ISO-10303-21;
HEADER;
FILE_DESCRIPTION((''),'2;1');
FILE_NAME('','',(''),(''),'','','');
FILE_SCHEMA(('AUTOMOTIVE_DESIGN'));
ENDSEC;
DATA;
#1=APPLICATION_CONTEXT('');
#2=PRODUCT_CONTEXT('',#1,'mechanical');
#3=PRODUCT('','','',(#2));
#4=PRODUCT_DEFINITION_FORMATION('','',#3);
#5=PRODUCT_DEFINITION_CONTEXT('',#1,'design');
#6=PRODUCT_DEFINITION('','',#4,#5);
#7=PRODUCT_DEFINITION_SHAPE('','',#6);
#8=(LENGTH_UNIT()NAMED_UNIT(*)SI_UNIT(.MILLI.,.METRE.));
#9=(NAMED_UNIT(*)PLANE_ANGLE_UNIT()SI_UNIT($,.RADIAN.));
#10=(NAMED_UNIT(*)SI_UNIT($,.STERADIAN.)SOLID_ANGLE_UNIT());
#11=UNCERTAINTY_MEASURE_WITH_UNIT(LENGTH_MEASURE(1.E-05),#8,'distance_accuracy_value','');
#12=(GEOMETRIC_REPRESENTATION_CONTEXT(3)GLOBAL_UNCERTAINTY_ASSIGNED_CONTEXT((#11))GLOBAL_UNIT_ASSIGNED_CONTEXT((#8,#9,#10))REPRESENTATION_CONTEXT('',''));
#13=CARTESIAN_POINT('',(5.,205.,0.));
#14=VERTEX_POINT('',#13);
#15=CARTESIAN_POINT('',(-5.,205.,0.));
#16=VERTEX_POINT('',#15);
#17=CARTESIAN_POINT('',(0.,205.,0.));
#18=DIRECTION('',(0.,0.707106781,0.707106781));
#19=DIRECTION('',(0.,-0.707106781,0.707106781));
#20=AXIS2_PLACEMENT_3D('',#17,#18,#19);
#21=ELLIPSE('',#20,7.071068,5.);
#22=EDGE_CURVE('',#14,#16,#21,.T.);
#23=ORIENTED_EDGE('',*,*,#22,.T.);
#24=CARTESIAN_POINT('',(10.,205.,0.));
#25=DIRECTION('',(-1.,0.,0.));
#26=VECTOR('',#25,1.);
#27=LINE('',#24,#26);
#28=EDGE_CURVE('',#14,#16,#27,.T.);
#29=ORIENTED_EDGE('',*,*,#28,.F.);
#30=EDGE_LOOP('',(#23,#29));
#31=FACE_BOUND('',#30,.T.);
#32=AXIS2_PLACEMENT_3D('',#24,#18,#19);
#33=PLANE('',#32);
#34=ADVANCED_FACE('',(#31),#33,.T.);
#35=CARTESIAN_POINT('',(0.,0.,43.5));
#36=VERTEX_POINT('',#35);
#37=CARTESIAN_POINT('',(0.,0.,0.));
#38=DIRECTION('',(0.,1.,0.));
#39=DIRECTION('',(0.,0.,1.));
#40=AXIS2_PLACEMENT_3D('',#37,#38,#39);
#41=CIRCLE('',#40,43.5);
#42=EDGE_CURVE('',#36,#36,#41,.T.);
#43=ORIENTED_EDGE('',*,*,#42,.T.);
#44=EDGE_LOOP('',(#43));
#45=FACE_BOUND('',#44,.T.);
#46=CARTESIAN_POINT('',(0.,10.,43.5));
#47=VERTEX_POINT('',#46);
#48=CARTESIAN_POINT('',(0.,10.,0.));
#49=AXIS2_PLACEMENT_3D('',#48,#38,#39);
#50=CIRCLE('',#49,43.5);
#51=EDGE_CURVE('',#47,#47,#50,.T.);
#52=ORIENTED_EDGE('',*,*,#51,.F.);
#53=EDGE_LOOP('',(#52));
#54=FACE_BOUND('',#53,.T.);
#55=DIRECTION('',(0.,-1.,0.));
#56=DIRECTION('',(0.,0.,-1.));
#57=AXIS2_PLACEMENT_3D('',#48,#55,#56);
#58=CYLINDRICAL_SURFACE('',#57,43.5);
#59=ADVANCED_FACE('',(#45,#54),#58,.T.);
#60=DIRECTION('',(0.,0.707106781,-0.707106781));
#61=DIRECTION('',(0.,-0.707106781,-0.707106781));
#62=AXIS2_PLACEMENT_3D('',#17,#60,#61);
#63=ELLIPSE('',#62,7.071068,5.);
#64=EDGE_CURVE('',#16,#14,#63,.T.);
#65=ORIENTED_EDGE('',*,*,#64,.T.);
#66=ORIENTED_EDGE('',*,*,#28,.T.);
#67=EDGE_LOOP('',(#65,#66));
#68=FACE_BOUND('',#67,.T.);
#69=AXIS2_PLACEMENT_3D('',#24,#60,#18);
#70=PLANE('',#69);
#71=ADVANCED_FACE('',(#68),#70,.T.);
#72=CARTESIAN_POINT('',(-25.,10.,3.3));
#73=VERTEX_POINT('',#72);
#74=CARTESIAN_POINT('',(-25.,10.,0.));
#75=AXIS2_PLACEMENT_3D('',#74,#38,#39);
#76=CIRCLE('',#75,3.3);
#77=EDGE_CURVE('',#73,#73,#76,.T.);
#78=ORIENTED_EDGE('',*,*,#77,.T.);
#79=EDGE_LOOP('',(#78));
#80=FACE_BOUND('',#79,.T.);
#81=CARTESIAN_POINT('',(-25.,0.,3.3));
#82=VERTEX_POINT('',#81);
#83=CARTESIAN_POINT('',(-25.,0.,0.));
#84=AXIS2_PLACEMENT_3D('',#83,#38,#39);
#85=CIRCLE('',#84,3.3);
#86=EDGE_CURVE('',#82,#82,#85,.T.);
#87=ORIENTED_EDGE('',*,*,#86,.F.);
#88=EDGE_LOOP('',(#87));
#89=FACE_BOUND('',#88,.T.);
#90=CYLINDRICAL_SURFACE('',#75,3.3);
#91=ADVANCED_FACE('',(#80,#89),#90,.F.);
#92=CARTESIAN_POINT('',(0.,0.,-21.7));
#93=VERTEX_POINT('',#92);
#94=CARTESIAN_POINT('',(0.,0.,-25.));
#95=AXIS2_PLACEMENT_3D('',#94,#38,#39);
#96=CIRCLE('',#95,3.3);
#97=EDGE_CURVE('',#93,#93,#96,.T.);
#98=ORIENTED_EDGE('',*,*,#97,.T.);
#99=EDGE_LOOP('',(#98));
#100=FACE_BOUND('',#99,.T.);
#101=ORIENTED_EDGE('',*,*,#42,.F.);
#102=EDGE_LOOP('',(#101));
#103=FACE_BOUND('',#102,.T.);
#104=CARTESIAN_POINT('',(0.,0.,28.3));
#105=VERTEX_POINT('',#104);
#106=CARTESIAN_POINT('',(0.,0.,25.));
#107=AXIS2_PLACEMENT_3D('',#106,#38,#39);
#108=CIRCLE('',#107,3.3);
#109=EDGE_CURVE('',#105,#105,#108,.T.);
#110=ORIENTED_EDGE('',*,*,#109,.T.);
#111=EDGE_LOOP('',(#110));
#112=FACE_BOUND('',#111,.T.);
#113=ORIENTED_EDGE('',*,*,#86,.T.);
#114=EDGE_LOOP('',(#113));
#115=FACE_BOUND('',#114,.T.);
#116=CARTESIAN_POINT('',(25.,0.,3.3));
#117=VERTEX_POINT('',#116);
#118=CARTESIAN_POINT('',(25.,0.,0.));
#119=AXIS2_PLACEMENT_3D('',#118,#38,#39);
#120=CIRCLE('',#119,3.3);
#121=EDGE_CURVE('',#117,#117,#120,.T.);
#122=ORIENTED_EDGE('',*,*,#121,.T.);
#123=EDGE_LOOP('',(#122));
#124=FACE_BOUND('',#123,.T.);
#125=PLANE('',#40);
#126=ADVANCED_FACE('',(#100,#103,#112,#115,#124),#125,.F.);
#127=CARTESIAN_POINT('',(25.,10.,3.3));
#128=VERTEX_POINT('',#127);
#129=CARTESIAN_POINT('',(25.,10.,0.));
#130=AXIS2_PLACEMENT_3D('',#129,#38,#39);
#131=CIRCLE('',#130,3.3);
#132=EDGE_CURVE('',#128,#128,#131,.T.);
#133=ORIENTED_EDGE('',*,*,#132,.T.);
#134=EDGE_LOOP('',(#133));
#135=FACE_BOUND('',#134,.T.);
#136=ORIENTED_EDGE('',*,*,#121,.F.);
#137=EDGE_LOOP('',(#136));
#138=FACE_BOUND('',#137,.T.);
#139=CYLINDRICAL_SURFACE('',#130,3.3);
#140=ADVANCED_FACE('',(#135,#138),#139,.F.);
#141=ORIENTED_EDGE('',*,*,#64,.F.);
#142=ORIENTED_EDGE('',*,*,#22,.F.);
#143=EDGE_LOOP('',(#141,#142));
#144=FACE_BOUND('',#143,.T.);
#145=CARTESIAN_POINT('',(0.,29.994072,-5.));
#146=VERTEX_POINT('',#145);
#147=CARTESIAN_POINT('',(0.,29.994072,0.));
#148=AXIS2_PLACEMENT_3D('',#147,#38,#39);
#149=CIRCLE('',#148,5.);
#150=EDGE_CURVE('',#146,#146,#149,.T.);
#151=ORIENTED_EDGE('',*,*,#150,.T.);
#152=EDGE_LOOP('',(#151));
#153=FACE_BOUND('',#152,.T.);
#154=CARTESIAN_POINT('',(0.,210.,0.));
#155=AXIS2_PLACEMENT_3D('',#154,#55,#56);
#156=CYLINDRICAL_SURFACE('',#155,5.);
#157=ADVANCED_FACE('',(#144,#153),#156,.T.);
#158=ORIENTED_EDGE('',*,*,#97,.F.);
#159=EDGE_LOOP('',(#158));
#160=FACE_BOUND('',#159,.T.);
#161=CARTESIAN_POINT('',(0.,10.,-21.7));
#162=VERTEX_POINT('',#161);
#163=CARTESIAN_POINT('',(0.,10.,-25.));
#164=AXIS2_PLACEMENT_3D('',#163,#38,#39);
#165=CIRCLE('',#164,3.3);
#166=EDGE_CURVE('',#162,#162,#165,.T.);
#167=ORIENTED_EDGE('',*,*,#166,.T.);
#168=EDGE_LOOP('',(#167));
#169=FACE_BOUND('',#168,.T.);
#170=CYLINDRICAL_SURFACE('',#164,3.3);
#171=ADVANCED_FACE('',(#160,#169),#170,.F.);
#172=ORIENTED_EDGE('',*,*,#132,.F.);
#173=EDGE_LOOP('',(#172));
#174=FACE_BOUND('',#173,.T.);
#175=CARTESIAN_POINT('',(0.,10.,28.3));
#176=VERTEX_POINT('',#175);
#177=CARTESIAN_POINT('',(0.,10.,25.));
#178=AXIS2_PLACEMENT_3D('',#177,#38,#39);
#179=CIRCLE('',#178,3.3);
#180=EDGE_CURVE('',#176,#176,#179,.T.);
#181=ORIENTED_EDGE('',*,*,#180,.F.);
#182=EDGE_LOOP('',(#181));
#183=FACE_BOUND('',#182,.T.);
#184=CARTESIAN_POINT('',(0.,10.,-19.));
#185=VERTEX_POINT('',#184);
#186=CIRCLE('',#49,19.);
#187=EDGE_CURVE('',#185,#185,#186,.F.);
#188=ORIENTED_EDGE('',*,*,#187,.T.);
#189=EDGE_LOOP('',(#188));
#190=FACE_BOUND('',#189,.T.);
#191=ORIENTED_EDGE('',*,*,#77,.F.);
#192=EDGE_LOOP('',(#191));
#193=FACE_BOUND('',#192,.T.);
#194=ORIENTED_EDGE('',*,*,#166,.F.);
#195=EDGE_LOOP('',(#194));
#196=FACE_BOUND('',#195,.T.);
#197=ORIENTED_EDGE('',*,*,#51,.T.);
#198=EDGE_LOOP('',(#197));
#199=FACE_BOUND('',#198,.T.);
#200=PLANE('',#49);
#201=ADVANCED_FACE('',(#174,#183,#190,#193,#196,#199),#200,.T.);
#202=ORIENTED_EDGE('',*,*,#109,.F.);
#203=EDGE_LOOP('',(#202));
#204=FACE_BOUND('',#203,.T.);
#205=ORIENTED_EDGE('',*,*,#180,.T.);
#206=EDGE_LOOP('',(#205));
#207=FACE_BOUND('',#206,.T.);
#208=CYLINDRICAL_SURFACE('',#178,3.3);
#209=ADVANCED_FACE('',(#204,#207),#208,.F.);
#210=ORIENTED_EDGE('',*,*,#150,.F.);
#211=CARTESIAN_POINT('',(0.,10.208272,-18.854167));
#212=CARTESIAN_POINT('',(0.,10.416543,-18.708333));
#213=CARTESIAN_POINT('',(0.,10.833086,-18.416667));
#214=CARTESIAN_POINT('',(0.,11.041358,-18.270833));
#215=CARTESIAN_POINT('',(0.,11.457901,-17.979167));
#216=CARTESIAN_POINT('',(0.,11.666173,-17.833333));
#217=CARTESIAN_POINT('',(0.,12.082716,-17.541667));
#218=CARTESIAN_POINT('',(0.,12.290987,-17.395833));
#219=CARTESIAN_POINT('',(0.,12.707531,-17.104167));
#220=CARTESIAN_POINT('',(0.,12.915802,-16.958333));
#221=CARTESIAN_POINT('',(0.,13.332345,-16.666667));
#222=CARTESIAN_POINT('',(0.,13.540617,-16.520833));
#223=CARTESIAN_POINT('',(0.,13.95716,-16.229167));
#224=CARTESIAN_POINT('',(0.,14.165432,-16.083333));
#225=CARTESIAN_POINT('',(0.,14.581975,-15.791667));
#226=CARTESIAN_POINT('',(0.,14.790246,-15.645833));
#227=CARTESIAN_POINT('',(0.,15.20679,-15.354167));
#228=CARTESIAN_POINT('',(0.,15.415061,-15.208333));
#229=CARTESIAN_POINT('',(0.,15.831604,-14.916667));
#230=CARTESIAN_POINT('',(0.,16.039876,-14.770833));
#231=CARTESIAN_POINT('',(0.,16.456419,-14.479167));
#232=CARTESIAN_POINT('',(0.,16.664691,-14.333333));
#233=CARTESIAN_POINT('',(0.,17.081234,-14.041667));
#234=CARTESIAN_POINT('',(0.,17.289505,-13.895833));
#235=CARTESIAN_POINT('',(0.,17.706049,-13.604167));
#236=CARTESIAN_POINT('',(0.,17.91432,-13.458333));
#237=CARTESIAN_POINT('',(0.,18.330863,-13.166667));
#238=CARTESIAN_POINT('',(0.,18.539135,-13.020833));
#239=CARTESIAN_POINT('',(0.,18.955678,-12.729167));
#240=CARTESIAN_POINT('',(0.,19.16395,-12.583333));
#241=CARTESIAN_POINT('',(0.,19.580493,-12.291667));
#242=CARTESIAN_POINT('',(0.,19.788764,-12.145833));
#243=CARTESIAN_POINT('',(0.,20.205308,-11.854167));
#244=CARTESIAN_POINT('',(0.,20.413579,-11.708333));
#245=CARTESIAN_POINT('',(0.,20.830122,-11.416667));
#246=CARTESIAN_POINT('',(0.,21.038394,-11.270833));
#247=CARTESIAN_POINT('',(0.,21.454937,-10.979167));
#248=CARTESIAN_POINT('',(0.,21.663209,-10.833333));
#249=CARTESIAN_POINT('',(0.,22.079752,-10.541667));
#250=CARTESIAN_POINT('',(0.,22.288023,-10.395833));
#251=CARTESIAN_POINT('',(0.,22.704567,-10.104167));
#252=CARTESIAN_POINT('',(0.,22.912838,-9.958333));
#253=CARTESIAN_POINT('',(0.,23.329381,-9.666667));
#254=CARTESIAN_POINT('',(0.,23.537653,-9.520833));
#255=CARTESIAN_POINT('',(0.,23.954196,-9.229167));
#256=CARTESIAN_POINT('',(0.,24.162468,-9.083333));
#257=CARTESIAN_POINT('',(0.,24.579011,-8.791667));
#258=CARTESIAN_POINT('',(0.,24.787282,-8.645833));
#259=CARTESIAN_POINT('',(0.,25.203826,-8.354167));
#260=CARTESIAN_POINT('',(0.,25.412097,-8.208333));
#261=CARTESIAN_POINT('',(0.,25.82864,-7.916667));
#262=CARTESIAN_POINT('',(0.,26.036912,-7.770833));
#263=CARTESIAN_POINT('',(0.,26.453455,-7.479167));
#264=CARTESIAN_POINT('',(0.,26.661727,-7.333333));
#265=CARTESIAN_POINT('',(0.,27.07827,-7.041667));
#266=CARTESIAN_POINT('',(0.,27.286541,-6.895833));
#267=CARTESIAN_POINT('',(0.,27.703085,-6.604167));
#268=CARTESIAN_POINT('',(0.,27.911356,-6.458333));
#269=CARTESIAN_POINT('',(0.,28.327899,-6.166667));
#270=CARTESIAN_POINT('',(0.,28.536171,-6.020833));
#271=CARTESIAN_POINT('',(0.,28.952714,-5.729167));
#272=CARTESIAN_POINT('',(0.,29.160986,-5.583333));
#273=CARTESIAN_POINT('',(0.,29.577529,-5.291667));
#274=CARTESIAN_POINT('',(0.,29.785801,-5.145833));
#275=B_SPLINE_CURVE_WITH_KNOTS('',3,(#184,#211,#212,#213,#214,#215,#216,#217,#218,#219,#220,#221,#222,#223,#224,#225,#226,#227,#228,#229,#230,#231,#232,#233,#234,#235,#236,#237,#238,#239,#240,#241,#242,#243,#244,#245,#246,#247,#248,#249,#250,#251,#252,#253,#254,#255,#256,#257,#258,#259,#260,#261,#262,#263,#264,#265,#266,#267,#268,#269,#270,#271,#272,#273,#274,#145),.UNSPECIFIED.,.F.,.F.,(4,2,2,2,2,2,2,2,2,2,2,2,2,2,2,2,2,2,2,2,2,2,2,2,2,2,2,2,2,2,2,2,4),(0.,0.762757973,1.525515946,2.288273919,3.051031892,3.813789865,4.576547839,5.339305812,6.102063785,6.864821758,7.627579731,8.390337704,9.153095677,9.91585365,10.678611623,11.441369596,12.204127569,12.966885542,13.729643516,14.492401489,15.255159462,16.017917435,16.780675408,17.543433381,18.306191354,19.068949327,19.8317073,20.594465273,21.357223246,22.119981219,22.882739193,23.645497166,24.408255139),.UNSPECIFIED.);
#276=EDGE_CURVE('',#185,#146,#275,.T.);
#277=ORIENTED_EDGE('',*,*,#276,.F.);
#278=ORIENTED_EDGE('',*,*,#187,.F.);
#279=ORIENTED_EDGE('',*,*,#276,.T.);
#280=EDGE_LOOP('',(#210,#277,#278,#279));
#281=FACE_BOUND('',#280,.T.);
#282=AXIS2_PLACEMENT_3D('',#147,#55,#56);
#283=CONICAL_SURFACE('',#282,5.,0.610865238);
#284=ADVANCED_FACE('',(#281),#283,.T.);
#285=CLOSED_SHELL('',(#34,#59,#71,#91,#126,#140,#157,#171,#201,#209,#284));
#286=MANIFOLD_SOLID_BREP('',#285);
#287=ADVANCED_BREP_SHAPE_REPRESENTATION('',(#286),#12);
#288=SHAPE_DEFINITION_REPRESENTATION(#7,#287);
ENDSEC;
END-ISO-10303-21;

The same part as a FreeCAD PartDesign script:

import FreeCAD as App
import Part
import Sketcher

V = App.Vector


def edges_at(feature, points):
    """Names of the edges that pass closest to the given points."""
    edges = feature.Shape.Edges
    near = lambda p: min(range(len(edges)), key=lambda i: edges[i].distToShape(Part.Vertex(*p))[0])
    return sorted({f"Edge{near(p) + 1}" for p in points})


def add_polygon(sketch, points):
    """Adds a closed chain of lines whose ends are joined by coincident constraints."""
    first, n = sketch.GeometryCount, len(points)
    for a, b in zip(points, points[1:] + points[:1]):
        sketch.addGeometry(Part.LineSegment(App.Vector(*a, 0), App.Vector(*b, 0)), False)
    for i in range(n):
        sketch.addConstraint(Sketcher.Constraint("Coincident", first + i, 2, first + (i + 1) % n, 1))

doc = App.newDocument("Part")
body = doc.addObject("PartDesign::Body", "Body")

# Sketch on XZ plane
sketch1 = body.newObject("Sketcher::SketchObject", "Sketch")
sketch1.AttachmentSupport = (doc.getObject("XZ_Plane"), [""])
sketch1.MapMode = "FlatFace"
sketch1.addGeometry(Part.Circle(V(0, 0, 0), V(0, 0, 1), 44), False)
sketch1.addConstraint([
    Sketcher.Constraint("Coincident", 0, 3, -1, 1),
    Sketcher.Constraint("Diameter", 0, 87.0),
])
pad1 = body.newObject("PartDesign::Pad", "Pad")
pad1.Profile = sketch1
pad1.Length = 10
pad1.Reversed = True

# Sketch on XZ plane
sketch2 = body.newObject("Sketcher::SketchObject", "Sketch001")
sketch2.AttachmentSupport = (doc.getObject("XZ_Plane"), [""])
sketch2.MapMode = "FlatFace"
sketch2.AttachmentOffset = App.Placement(V(0, 0, -10), App.Rotation())
sketch2.addGeometry(Part.Circle(V(0, 25, 0), V(0, 0, 1), 3.3), False)
sketch2.addConstraint([
    Sketcher.Constraint("PointOnObject", 0, 3, -2),
    Sketcher.Constraint("Diameter", 0, 6.6),
    Sketcher.Constraint("DistanceY", -1, 1, 0, 3, 25.0),
])
doc.recompute()
hole = body.newObject("PartDesign::Hole", "Hole")
hole.Profile = sketch2
hole.ThreadType = "None"
hole.Diameter = 6.6
hole.DepthType = "ThroughAll"
hole.Reversed = True
doc.recompute()

polarpattern = body.newObject("PartDesign::PolarPattern", "PolarPattern")
polarpattern.Originals = [hole]
polarpattern.Axis = (doc.getObject("Y_Axis"), [""])
polarpattern.Angle = 360
polarpattern.Occurrences = 4
body.Tip = polarpattern

# Sketch on XZ plane
sketch3 = body.newObject("Sketcher::SketchObject", "Sketch002")
sketch3.AttachmentSupport = (doc.getObject("XZ_Plane"), [""])
sketch3.MapMode = "FlatFace"
sketch3.AttachmentOffset = App.Placement(V(0, 0, -10), App.Rotation())
sketch3.addGeometry(Part.Circle(V(0, 0, 0), V(0, 0, 1), 5), False)
sketch3.addConstraint([
    Sketcher.Constraint("Coincident", 0, 3, -1, 1),
    Sketcher.Constraint("Diameter", 0, 10.0),
])
pad2 = body.newObject("PartDesign::Pad", "Pad001")
pad2.Profile = sketch3
pad2.Length = 200
pad2.Reversed = True

# Sketch on YZ plane
sketch4 = body.newObject("Sketcher::SketchObject", "Sketch003")
sketch4.AttachmentSupport = (doc.getObject("YZ_Plane"), [""])
sketch4.MapMode = "FlatFace"
add_polygon(sketch4, [(210, -5), (210, 5), (205, 0)])  # lines 0-2
sketch4.addConstraint([
    Sketcher.Constraint("Vertical", 0),
    Sketcher.Constraint("PointOnObject", 1, 2, -1),
    Sketcher.Constraint("Perpendicular", 1, 2),
    Sketcher.Constraint("Equal", 1, 2),
    Sketcher.Constraint("DistanceY", 0, 1, 0, 2, 10.0),
    Sketcher.Constraint("DistanceX", -1, 1, 0, 2, 210.0),
])
pocket1 = body.newObject("PartDesign::Pocket", "Pocket")
pocket1.Profile = sketch4
pocket1.Type = "ThroughAll"
pocket1.Midplane = True
doc.recompute()

chamfer = body.newObject("PartDesign::Chamfer", "Chamfer")
chamfer.Base = (pocket1, edges_at(pocket1, [(0, 10, -5)]))
chamfer.ChamferType = "Two distances"
chamfer.Size = 14
chamfer.Size2 = 19.994072

doc.recompute()
